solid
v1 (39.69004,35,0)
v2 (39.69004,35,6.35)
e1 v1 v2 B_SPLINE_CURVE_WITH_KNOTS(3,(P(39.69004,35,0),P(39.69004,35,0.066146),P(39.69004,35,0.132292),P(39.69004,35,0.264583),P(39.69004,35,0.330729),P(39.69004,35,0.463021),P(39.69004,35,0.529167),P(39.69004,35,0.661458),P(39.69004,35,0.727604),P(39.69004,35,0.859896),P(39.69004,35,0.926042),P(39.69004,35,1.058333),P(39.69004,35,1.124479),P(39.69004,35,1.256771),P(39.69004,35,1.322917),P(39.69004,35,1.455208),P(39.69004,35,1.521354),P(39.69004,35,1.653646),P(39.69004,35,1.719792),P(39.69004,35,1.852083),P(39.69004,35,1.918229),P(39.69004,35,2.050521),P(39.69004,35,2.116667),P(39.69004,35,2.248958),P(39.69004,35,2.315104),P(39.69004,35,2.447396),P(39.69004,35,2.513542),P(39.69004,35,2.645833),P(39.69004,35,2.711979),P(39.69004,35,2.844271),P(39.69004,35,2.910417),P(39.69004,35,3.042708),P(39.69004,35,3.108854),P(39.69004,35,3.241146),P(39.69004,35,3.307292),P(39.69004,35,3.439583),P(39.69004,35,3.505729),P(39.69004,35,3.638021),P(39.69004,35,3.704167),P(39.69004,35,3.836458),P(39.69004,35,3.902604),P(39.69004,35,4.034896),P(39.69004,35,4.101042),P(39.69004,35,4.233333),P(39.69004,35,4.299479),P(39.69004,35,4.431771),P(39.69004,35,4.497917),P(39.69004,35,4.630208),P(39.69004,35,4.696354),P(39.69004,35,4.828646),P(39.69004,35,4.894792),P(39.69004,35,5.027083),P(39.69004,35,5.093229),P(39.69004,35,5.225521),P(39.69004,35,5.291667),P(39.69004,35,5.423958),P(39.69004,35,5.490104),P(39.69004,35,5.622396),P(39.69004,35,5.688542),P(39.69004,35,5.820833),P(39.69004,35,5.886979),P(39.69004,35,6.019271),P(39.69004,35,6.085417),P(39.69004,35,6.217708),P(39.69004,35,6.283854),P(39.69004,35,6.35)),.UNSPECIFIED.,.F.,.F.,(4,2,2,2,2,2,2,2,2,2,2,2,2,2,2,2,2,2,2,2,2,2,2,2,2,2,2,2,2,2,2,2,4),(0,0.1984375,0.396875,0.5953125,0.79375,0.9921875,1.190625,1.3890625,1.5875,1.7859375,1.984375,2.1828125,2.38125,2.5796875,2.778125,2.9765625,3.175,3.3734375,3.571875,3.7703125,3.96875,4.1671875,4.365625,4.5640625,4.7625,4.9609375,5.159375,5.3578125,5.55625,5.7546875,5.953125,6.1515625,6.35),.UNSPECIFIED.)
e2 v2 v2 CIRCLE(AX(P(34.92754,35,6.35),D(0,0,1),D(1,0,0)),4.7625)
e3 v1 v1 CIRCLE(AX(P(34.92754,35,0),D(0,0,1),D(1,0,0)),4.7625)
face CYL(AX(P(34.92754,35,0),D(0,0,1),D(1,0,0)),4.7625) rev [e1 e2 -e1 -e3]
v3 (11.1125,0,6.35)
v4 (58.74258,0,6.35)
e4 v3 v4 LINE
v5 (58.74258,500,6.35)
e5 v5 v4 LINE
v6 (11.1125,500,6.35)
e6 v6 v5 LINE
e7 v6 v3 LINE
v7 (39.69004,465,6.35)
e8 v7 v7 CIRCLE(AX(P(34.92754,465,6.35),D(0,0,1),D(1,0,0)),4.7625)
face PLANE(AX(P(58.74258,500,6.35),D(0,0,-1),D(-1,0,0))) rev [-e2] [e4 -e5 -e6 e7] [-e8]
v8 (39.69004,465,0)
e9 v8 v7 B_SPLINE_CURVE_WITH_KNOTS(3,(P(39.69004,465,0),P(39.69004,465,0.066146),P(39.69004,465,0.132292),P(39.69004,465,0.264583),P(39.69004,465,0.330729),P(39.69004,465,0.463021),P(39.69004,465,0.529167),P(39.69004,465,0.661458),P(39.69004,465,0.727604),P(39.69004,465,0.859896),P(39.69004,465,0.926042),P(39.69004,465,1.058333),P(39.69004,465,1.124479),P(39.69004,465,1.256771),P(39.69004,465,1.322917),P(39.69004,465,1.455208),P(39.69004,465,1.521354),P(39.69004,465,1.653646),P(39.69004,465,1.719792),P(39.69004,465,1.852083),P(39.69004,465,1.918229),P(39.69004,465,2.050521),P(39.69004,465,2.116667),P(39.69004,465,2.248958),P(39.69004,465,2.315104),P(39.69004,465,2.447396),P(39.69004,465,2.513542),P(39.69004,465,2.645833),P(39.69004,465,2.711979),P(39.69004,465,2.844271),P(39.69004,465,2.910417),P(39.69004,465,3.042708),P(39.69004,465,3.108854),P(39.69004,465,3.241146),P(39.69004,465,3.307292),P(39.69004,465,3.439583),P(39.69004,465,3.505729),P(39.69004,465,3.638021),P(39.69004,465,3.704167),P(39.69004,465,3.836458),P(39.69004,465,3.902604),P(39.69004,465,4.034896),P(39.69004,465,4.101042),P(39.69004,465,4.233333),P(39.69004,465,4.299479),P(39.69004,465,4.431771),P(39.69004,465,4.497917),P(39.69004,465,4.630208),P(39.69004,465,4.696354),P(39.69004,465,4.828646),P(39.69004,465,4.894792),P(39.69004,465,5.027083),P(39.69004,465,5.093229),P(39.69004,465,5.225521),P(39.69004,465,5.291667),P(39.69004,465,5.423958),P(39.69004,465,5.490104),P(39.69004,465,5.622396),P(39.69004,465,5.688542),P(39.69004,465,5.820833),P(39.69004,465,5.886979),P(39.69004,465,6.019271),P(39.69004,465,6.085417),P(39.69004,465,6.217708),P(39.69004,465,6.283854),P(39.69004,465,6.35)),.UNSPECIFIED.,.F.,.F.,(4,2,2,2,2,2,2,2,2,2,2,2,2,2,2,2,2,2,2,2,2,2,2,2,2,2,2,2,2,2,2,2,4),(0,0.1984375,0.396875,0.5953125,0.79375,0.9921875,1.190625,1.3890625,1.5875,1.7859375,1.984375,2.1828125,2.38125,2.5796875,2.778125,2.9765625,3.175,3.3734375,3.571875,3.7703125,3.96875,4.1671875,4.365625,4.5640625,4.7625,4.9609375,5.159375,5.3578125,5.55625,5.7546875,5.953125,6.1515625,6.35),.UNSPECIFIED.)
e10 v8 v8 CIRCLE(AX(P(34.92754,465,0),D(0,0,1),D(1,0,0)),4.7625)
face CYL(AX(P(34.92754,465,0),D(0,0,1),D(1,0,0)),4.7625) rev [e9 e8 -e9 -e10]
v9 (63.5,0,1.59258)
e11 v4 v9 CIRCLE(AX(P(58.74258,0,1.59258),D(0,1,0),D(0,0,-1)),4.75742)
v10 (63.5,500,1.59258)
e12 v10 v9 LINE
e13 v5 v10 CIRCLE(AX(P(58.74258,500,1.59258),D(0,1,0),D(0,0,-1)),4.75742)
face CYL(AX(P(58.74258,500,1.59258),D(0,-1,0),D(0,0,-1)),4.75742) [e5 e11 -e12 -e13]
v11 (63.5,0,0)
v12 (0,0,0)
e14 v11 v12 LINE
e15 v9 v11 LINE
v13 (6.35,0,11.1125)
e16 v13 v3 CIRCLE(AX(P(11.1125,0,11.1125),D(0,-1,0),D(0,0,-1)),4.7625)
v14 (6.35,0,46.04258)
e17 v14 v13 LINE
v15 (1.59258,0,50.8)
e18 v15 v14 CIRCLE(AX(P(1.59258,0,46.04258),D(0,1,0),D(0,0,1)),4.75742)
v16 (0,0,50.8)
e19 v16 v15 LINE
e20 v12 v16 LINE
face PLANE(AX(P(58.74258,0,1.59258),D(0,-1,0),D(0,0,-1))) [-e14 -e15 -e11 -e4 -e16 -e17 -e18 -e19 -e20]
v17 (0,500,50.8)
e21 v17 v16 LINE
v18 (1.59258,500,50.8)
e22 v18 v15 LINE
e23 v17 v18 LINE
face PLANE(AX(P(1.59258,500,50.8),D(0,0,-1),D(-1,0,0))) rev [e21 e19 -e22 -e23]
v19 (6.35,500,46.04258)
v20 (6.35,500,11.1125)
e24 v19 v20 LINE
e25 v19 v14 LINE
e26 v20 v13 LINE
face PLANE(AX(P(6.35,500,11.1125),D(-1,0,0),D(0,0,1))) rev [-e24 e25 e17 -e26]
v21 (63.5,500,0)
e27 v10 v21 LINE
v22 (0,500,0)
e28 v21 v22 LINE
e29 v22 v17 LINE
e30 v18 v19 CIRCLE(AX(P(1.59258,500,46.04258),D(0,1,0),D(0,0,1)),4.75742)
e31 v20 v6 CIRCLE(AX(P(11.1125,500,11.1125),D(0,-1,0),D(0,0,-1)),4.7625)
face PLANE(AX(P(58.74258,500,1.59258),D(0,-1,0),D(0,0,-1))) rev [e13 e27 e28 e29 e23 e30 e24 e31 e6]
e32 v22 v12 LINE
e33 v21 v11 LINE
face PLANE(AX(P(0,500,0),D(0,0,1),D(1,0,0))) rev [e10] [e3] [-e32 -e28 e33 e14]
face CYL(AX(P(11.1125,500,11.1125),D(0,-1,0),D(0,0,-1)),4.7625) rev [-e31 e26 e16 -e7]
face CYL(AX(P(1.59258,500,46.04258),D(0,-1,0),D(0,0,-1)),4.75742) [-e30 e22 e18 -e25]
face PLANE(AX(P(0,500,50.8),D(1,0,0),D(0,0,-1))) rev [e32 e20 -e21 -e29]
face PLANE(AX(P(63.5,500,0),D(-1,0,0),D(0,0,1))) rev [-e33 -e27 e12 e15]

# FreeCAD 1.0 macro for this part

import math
import FreeCAD as App
import Part
import Sketcher
from FreeCAD import Vector
Q = App.Units.Quantity

doc = App.newDocument("Part")
params = doc.addObject("Spreadsheet::Sheet", "Params")
for row, (alias, value) in enumerate([
    ("sketch1_height", "2 in"),
    ("sketch1_width", "2.5 in"),
    ("sketch1_radius", "0.1875 in"),
    ("pad1_length", "500 mm"),
    ("sketch2_diameter", "0.375 in"),
    ("pocket1_length", "0.25 in"),
], start=1):
    params.set(f"A{row}", alias)
    params.set(f"B{row}", "=" + value)
    params.setAlias(f"B{row}", alias)

body = doc.addObject("PartDesign::Body", "Body")

# Sketch on XZ plane
sketch1 = doc.addObject("Sketcher::SketchObject", "Sketch")
body.addObject(sketch1)
sketch1.AttachmentSupport = (doc.XZ_Plane, [""])
sketch1.MapMode = "FlatFace"
sketch1.addGeometry(Part.LineSegment(Vector(63.5, 0, 0), Vector(0, 0, 0)), False)
sketch1.addGeometry(Part.LineSegment(Vector(0, 0, 0), Vector(0, 50.8, 0)), False)
sketch1.addGeometry(Part.LineSegment(Vector(0, 50.8, 0), Vector(1.6, 50.8, 0)), False)
sketch1.addGeometry(Part.ArcOfCircle(Part.Circle(Vector(1.6, 46, 0), Vector(0, 0, 1), 4.8), math.radians(0), math.radians(90)), False)
sketch1.addGeometry(Part.LineSegment(Vector(6.3, 46, 0), Vector(6.3, 11.1, 0)), False)
sketch1.addGeometry(Part.ArcOfCircle(Part.Circle(Vector(11.1, 11.1, 0), Vector(0, 0, 1), 4.8), math.radians(-180), math.radians(-90)), False)
sketch1.addGeometry(Part.LineSegment(Vector(11.1, 6.3, 0), Vector(58.7, 6.3, 0)), False)
sketch1.addGeometry(Part.ArcOfCircle(Part.Circle(Vector(58.7, 1.6, 0), Vector(0, 0, 1), 4.8), math.radians(0), math.radians(90)), False)
sketch1.addGeometry(Part.LineSegment(Vector(63.5, 1.6, 0), Vector(63.5, 0, 0)), False)
sketch1.addConstraint(Sketcher.Constraint("Coincident", 0, 2, 1, 1))
sketch1.addConstraint(Sketcher.Constraint("Coincident", 1, 2, 2, 1))
sketch1.addConstraint(Sketcher.Constraint("Tangent", 2, 2, 3, 2))
sketch1.addConstraint(Sketcher.Constraint("Tangent", 3, 1, 4, 1))
sketch1.addConstraint(Sketcher.Constraint("Tangent", 4, 2, 5, 1))
sketch1.addConstraint(Sketcher.Constraint("Tangent", 5, 2, 6, 1))
sketch1.addConstraint(Sketcher.Constraint("Tangent", 6, 2, 7, 2))
sketch1.addConstraint(Sketcher.Constraint("Tangent", 7, 1, 8, 1))
sketch1.addConstraint(Sketcher.Constraint("Coincident", 8, 2, 0, 1))
sketch1.addConstraint(Sketcher.Constraint("Horizontal", 0))
sketch1.addConstraint(Sketcher.Constraint("Vertical", 1))
sketch1.addConstraint(Sketcher.Constraint("Horizontal", 2))
sketch1.addConstraint(Sketcher.Constraint("Vertical", 4))
sketch1.addConstraint(Sketcher.Constraint("Horizontal", 6))
sketch1.addConstraint(Sketcher.Constraint("Vertical", 8))
sketch1.addConstraint(Sketcher.Constraint("Coincident", 0, 2, -1, 1))
sketch1.addConstraint(Sketcher.Constraint("Equal", 3, 7))
sketch1.addConstraint(Sketcher.Constraint("Equal", 2, 8))
sketch1.addConstraint(Sketcher.Constraint("DistanceY", 1, 1, 1, 2, Q("2 in")))
sketch1.addConstraint(Sketcher.Constraint("DistanceX", 0, 2, 0, 1, Q("2.5 in")))
sketch1.addConstraint(Sketcher.Constraint("Radius", 5, Q("0.1875 in")))
sketch1.addConstraint(Sketcher.Constraint("Radius", 3, Q("0.1873 in")))
sketch1.addConstraint(Sketcher.Constraint("DistanceX", -1, 1, 3, 1, Q("0.25 in")))
sketch1.setExpression("Constraints[18]", "Params.sketch1_height")
sketch1.setExpression("Constraints[19]", "Params.sketch1_width")
sketch1.setExpression("Constraints[20]", "Params.sketch1_radius")
pad1 = doc.addObject("PartDesign::Pad", "Pad")
body.addObject(pad1)
pad1.Profile = sketch1
pad1.setExpression("Length", "Params.pad1_length")
pad1.Reversed = True

# Sketch on XY plane
sketch2 = doc.addObject("Sketcher::SketchObject", "Sketch001")
body.addObject(sketch2)
sketch2.AttachmentSupport = (doc.XY_Plane, [""])
sketch2.MapMode = "FlatFace"
sketch2.AttachmentOffset = App.Placement(Vector(0, 0, 0.25 * 25.4), App.Rotation())
sketch2.addGeometry(Part.Circle(Vector(34.9, 465, 0), Vector(0, 0, 1), 4.8), False)
sketch2.addGeometry(Part.Circle(Vector(34.9, 35, 0), Vector(0, 0, 1), 4.8), False)
sketch2.addConstraint(Sketcher.Constraint("Equal", 0, 1))
sketch2.addConstraint(Sketcher.Constraint("Vertical", 0, 3, 1, 3))
sketch2.addConstraint(Sketcher.Constraint("Diameter", 0, Q("0.375 in")))
sketch2.addConstraint(Sketcher.Constraint("DistanceX", -1, 1, 0, 3, Q("1.3751 in")))
sketch2.addConstraint(Sketcher.Constraint("DistanceY", -1, 1, 0, 3, 465.0))
sketch2.addConstraint(Sketcher.Constraint("DistanceY", -1, 1, 1, 3, 35.0))
sketch2.setExpression("Constraints[2]", "Params.sketch2_diameter")
pocket1 = doc.addObject("PartDesign::Pocket", "Pocket")
body.addObject(pocket1)
pocket1.Profile = sketch2
pocket1.setExpression("Length", "Params.pocket1_length")

doc.recompute()
